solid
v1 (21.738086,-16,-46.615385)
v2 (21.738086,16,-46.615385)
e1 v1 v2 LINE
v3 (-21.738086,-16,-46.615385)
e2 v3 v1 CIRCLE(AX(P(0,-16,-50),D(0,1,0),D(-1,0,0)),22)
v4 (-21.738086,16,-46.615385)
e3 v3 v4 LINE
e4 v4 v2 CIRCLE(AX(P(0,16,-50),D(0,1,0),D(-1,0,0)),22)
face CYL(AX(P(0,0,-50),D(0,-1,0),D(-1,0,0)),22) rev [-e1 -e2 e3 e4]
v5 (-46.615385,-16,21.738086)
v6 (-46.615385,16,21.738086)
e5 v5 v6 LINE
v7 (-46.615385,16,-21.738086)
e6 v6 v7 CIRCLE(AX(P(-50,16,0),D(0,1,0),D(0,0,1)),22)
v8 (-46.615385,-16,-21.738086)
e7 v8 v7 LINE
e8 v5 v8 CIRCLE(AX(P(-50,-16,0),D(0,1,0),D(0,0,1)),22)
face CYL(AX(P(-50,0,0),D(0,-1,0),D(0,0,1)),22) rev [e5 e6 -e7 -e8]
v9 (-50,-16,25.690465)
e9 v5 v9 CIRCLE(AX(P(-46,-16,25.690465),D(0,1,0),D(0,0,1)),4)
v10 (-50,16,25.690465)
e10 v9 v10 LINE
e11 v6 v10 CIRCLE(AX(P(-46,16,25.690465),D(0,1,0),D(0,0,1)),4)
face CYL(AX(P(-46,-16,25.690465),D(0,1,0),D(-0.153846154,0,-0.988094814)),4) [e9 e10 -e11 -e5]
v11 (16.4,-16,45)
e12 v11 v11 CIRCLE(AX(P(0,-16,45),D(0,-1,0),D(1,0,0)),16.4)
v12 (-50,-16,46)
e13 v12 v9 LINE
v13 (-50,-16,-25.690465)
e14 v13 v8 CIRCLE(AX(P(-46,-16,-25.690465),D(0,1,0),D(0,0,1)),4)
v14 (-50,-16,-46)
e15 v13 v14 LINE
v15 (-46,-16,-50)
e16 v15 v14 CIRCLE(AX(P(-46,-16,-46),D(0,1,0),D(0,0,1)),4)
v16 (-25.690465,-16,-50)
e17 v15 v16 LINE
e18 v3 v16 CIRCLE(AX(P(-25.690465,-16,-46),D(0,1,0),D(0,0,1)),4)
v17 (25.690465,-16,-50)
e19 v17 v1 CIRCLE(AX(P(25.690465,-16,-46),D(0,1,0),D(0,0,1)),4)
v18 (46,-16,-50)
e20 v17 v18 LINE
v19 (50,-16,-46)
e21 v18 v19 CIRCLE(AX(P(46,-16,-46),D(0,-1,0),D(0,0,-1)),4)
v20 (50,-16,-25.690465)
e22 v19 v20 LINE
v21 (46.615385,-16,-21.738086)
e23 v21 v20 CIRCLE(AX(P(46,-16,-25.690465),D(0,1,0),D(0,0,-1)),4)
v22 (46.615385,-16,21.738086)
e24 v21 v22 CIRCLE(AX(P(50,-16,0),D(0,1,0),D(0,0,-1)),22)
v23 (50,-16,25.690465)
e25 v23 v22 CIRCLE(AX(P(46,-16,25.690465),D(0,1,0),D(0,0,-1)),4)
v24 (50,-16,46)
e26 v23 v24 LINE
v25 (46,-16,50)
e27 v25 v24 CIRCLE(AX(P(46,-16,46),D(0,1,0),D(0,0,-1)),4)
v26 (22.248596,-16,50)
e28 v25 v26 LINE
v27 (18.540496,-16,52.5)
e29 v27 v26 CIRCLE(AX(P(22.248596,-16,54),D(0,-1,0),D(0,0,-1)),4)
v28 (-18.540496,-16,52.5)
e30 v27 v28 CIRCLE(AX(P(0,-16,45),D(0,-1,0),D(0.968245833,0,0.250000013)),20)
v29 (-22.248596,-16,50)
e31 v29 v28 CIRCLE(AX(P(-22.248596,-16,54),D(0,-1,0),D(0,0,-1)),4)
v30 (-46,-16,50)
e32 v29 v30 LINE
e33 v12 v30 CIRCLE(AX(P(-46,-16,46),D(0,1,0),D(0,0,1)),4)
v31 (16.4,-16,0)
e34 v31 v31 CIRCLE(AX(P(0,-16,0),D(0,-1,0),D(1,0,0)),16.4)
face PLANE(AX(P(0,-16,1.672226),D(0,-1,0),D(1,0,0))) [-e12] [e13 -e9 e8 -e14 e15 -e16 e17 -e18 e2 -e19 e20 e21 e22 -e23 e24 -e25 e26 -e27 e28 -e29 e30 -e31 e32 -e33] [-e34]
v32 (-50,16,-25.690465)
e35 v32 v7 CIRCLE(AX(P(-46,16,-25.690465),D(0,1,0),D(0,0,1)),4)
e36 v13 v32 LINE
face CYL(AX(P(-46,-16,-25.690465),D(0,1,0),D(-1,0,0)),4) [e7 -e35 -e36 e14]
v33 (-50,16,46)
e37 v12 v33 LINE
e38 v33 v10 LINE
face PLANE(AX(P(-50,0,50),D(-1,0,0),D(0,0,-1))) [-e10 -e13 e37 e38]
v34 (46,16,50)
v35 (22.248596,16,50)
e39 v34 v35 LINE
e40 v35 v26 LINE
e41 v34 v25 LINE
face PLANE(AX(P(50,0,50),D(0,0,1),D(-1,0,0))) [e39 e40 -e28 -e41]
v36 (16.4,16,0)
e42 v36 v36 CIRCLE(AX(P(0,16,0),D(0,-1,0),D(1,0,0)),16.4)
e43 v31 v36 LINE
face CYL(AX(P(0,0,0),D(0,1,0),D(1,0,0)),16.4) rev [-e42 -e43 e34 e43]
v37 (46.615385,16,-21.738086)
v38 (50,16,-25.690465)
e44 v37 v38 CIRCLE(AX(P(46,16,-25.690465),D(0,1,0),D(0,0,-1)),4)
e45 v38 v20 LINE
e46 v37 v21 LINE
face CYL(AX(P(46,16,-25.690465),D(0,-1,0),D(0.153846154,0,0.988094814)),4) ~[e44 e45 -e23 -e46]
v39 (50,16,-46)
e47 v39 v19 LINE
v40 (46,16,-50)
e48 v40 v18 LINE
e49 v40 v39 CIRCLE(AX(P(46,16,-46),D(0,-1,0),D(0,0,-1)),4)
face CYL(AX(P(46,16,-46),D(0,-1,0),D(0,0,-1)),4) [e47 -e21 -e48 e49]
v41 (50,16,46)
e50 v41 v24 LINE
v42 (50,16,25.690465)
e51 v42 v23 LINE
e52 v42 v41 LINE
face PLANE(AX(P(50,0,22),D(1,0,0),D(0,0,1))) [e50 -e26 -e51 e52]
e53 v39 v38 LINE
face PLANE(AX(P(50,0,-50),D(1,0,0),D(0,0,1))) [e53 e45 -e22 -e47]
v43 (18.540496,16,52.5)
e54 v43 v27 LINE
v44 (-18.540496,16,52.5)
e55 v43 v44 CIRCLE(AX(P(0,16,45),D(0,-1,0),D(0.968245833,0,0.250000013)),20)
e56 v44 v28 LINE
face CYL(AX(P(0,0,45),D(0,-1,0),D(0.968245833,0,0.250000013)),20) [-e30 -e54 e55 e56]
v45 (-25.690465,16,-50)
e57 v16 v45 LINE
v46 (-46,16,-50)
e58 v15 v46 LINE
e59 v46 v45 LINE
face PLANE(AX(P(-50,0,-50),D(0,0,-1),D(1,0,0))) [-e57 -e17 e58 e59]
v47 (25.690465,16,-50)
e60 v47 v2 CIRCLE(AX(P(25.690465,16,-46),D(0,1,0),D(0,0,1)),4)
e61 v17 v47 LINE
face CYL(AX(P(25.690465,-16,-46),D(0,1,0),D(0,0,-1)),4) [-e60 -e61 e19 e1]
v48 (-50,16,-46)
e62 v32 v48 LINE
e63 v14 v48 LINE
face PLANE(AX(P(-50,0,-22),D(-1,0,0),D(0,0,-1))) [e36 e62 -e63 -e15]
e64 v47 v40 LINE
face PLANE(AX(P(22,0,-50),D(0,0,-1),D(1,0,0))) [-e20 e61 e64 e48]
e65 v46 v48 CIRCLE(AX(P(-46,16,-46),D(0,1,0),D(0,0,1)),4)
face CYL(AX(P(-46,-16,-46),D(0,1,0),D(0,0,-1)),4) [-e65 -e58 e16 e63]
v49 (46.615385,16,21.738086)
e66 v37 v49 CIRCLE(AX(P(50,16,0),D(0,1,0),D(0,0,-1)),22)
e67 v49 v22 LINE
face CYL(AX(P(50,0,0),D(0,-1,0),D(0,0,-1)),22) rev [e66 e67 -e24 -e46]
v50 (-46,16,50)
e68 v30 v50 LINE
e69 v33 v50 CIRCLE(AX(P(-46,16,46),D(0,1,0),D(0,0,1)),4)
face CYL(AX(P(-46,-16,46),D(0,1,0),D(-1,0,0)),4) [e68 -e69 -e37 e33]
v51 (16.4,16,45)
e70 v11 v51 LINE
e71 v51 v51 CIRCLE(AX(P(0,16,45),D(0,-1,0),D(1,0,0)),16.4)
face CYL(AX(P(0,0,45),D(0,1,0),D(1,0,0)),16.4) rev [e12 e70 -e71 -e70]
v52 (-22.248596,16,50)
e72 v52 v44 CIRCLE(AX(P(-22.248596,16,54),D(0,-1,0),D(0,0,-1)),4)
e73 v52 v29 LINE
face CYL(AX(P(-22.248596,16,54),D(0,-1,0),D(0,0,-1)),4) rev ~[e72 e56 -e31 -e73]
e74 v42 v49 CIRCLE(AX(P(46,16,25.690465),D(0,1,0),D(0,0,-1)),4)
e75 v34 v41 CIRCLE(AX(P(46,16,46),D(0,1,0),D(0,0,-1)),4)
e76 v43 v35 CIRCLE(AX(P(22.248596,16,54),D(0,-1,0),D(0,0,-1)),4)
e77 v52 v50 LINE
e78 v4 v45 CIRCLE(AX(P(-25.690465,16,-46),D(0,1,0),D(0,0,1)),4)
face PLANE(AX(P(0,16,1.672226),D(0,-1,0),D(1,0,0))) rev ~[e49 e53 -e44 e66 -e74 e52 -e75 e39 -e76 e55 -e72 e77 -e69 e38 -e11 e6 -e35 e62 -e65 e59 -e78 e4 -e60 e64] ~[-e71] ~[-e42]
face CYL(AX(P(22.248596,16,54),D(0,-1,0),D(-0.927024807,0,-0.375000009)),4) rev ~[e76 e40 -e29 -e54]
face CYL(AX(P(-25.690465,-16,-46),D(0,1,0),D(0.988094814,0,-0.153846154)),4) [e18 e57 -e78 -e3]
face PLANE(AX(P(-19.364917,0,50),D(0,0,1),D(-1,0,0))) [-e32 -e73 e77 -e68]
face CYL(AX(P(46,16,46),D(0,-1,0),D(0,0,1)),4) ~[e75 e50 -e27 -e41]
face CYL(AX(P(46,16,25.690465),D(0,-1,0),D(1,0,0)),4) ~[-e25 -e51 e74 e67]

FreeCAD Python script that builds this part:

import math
import FreeCAD as App
import Part
import Sketcher


def edges_at(feature, points):
    """Names of the edges that pass closest to the given points."""
    edges = feature.Shape.Edges
    near = lambda p: min(range(len(edges)), key=lambda i: edges[i].distToShape(Part.Vertex(*p))[0])
    return sorted({f"Edge{near(p) + 1}" for p in points})

doc = App.newDocument("Part")
body = doc.addObject("PartDesign::Body", "Body")

# Sketch on XZ plane
sketch1 = doc.addObject("Sketcher::SketchObject", "Sketch")
body.addObject(sketch1)
sketch1.AttachmentSupport = (doc.XZ_Plane, [""])
sketch1.MapMode = "FlatFace"
sketch1.addGeometry([
    Part.LineSegment(App.Vector(22, -50, 0), App.Vector(50, -50, 0)),  # 0
    Part.LineSegment(App.Vector(50, -50, 0), App.Vector(50, -22, 0)),  # 1
    Part.ArcOfCircle(Part.Circle(App.Vector(50, 0, 0), App.Vector(0, 0, 1), 22), math.radians(90), math.radians(270)),  # 2
    Part.LineSegment(App.Vector(50, 22, 0), App.Vector(50, 50, 0)),  # 3
    Part.LineSegment(App.Vector(50, 50, 0), App.Vector(19.364917, 50, 0)),  # 4
    Part.ArcOfCircle(Part.Circle(App.Vector(0, 45, 0), App.Vector(0, 0, 1), 20), math.radians(14.477513), math.radians(165.522487)),  # 5
    Part.LineSegment(App.Vector(-19.364917, 50, 0), App.Vector(-50, 50, 0)),  # 6
    Part.LineSegment(App.Vector(-50, 50, 0), App.Vector(-50, 22, 0)),  # 7
    Part.ArcOfCircle(Part.Circle(App.Vector(-50, 0, 0), App.Vector(0, 0, 1), 22), math.radians(-90), math.radians(90)),  # 8
    Part.LineSegment(App.Vector(-50, -22, 0), App.Vector(-50, -50, 0)),  # 9
    Part.LineSegment(App.Vector(-50, -50, 0), App.Vector(-22, -50, 0)),  # 10
    Part.ArcOfCircle(Part.Circle(App.Vector(0, -50, 0), App.Vector(0, 0, 1), 22), math.radians(0), math.radians(180)),  # 11
    Part.Circle(App.Vector(0, 0, 0), App.Vector(0, 0, 1), 16.4),  # 12
    Part.Circle(App.Vector(0, 45, 0), App.Vector(0, 0, 1), 16.4),  # 13
], False)
sketch1.addConstraint([
    Sketcher.Constraint("Coincident", 0, 2, 1, 1),
    Sketcher.Constraint("Coincident", 1, 2, 2, 2),
    Sketcher.Constraint("Coincident", 2, 1, 3, 1),
    Sketcher.Constraint("Coincident", 3, 2, 4, 1),
    Sketcher.Constraint("Coincident", 4, 2, 5, 1),
    Sketcher.Constraint("Coincident", 5, 2, 6, 1),
    Sketcher.Constraint("Coincident", 6, 2, 7, 1),
    Sketcher.Constraint("Coincident", 7, 2, 8, 2),
    Sketcher.Constraint("Coincident", 8, 1, 9, 1),
    Sketcher.Constraint("Coincident", 9, 2, 10, 1),
    Sketcher.Constraint("Coincident", 10, 2, 11, 2),
    Sketcher.Constraint("Coincident", 11, 1, 0, 1),
    Sketcher.Constraint("Horizontal", 0),
    Sketcher.Constraint("Vertical", 1),
    Sketcher.Constraint("Vertical", 3),
    Sketcher.Constraint("Horizontal", 4),
    Sketcher.Constraint("Horizontal", 6),
    Sketcher.Constraint("Vertical", 7),
    Sketcher.Constraint("Vertical", 9),
    Sketcher.Constraint("Horizontal", 10),
    Sketcher.Constraint("Coincident", 12, 3, -1, 1),
    Sketcher.Constraint("Coincident", 13, 3, 5, 3),
    Sketcher.Constraint("Equal", 2, 8),
    Sketcher.Constraint("Equal", 8, 11),
    Sketcher.Constraint("Equal", 12, 13),
    Sketcher.Constraint("Symmetric", 2, 3, 8, 3, -1, 1),
    Sketcher.Constraint("Symmetric", 0, 2, 6, 2, -1, 1),
    Sketcher.Constraint("Symmetric", 3, 2, 9, 2, -1, 1),
    Sketcher.Constraint("Symmetric", 4, 2, 5, 2, -2),
    Sketcher.Constraint("Symmetric", 2, 1, 7, 2, -2),
    Sketcher.Constraint("PointOnObject", 11, 3, -2),
    Sketcher.Constraint("Horizontal", 11, 3, 0, 2),
    Sketcher.Constraint("Vertical", 2, 3, 0, 2),
    Sketcher.Constraint("Equal", 10, 1),
    Sketcher.Constraint("Radius", 2, 22.0),
    Sketcher.Constraint("Radius", 5, 20.0),
    Sketcher.Constraint("Diameter", 12, 32.8),
    Sketcher.Constraint("DistanceX", 0, 1, 0, 2, 28.0),
    Sketcher.Constraint("DistanceY", -1, 1, 5, 3, 45.0),
])
pad1 = doc.addObject("PartDesign::Pad", "Pad")
body.addObject(pad1)
pad1.Profile = sketch1
pad1.Length = 32
pad1.Midplane = True
doc.recompute()

fillet = doc.addObject("PartDesign::Fillet", "Fillet")
body.addObject(fillet)
fillet.Base = (pad1, edges_at(pad1, [
    (19.365, 0, 50),
    (50, 0, 50),
    (50, 0, 22),
    (50, 0, -22),
    (50, 0, -50),
    (-50, 0, -22),
    (-50, 0, 50),
    (-19.365, 0, 50),
    (-50, 0, 22),
    (-50, 0, -50),
    (22, 0, -50),
    (-22, 0, -50),
]))
fillet.Radius = 4

doc.recompute()
